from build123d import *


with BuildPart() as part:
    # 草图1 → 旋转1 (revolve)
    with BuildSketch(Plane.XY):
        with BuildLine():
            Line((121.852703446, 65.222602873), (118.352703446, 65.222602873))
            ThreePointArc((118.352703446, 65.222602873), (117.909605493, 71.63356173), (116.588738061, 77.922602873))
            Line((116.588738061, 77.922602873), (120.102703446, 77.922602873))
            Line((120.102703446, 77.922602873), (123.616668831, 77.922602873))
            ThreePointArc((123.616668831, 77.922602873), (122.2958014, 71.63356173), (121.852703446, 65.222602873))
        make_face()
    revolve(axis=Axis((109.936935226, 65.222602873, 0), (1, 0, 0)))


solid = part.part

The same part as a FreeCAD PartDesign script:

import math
import FreeCAD as App
import Part
import Sketcher

doc = App.newDocument("Part")
body = doc.addObject("PartDesign::Body", "Body")

sketch1 = doc.addObject("Sketcher::SketchObject", "Sketch")
body.addObject(sketch1)
sketch1.AttachmentSupport = (doc.XY_Plane, [""])
sketch1.MapMode = "FlatFace"
sketch1.addGeometry([
    Part.LineSegment(App.Vector(118.352703, 65.222603, 0), App.Vector(121.852703, 65.222603, 0)),
    Part.ArcOfCircle(Part.Circle(App.Vector(168.452704, 65.222603, 0), App.Vector(0, 0, 1), 46.6), math.radians(164.184997), math.radians(180)),
    Part.LineSegment(App.Vector(123.616669, 77.922603, 0), App.Vector(116.588738, 77.922603, 0)),
    Part.ArcOfCircle(Part.Circle(App.Vector(71.752703, 65.222603, 0), App.Vector(0, 0, 1), 46.6), math.radians(0), math.radians(15.815003)),
], False)
sketch1.addGeometry(Part.LineSegment(App.Vector(71.752703, 65.222603, 0), App.Vector(168.452704, 65.222603, 0)), True)
sketch1.addConstraint([
    Sketcher.Constraint("Coincident", 0, 2, 1, 2),
    Sketcher.Constraint("Coincident", 1, 1, 2, 1),
    Sketcher.Constraint("Coincident", 2, 2, 3, 2),
    Sketcher.Constraint("Coincident", 3, 1, 0, 1),
    Sketcher.Constraint("Horizontal", 0),
    Sketcher.Constraint("Horizontal", 2),
    Sketcher.Constraint("Horizontal", 4),
    Sketcher.Constraint("Coincident", 4, 1, 3, 3),
    Sketcher.Constraint("Coincident", 4, 2, 1, 3),
    Sketcher.Constraint("Equal", 1, 3),
    Sketcher.Constraint("Horizontal", 3, 3, 0, 2),
    Sketcher.Constraint("Radius", 1, 46.6),
    Sketcher.Constraint("DistanceX", 0, 1, 0, 2, 3.5),
    Sketcher.Constraint("DistanceY", 0, 2, 1, 1, 12.7),
    Sketcher.Constraint("DistanceX", -1, 1, 1, 1, 123.616669),
    Sketcher.Constraint("DistanceY", -1, 1, 1, 3, 65.222603),
])
revolution = doc.addObject("PartDesign::Revolution", "Revolution")
body.addObject(revolution)
revolution.Profile = sketch1
revolution.ReferenceAxis = (sketch1, ["Axis0"])
revolution.Angle = 360

doc.recompute()
